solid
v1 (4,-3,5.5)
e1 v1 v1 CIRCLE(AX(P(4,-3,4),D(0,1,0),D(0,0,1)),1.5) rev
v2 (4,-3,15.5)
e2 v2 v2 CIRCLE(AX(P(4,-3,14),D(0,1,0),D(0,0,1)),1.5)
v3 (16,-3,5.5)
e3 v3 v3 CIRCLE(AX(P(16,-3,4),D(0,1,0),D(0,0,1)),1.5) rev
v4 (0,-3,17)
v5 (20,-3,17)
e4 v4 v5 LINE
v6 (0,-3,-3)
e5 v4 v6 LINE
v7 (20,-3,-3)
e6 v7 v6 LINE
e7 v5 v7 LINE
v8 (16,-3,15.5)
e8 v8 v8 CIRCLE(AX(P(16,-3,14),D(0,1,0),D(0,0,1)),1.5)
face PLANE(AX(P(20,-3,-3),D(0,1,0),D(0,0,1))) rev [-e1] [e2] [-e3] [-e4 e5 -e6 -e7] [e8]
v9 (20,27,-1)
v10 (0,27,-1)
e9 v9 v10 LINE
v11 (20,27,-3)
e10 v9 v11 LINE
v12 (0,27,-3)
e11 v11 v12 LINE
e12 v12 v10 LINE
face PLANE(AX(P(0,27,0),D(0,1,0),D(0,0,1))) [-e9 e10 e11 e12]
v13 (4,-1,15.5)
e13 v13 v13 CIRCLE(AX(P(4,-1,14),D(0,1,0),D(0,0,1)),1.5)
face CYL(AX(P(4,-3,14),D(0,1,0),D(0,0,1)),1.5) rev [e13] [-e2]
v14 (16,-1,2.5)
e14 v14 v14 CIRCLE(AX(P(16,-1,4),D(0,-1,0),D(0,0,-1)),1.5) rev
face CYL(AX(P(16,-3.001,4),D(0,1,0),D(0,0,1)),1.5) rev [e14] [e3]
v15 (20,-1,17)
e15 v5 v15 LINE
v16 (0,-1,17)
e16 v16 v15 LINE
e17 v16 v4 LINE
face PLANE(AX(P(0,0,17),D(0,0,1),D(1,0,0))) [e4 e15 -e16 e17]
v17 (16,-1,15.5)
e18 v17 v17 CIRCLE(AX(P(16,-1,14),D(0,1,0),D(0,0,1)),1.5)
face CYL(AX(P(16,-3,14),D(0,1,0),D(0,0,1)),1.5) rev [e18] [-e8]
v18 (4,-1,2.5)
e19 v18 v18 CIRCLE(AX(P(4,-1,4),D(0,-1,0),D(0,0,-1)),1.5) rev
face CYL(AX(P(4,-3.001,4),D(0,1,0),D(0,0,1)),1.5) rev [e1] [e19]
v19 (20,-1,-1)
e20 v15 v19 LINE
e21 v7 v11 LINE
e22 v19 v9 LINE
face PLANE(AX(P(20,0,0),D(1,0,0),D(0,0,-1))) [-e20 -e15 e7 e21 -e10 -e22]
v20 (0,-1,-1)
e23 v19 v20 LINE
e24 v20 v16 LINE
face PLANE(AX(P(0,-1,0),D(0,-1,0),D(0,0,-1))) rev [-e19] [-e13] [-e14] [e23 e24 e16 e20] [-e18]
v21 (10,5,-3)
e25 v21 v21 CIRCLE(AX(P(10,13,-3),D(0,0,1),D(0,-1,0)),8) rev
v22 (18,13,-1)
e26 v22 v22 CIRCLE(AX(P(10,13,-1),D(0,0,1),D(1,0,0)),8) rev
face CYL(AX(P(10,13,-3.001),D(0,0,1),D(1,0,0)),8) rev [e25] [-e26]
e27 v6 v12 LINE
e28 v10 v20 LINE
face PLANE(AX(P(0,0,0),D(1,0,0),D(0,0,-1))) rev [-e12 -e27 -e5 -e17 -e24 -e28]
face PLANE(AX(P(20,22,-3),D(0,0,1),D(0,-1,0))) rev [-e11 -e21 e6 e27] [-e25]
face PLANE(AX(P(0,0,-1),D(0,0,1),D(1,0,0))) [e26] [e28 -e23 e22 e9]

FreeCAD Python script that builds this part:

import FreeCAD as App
import Part
import Sketcher
from FreeCAD import Vector


def add_polygon(sketch, points):
    """Adds a closed chain of lines whose ends are joined by coincident constraints."""
    first, n = sketch.GeometryCount, len(points)
    for a, b in zip(points, points[1:] + points[:1]):
        sketch.addGeometry(Part.LineSegment(App.Vector(*a, 0), App.Vector(*b, 0)), False)
    for i in range(n):
        sketch.addConstraint(Sketcher.Constraint("Coincident", first + i, 2, first + (i + 1) % n, 1))

doc = App.newDocument("Part")
body = doc.addObject("PartDesign::Body", "Body")

sketch1 = body.newObject("Sketcher::SketchObject", "Sketch")
sketch1.AttachmentSupport = (doc.getObject("YZ_Plane"), [""])
sketch1.MapMode = "FlatFace"
add_polygon(sketch1, [(22, 0), (0, 0), (0, 35), (-3, 35), (-3, -3), (22, -3)])
sketch1.addConstraint([
    Sketcher.Constraint("Horizontal", 0),
    Sketcher.Constraint("Vertical", 1),
    Sketcher.Constraint("Horizontal", 2),
    Sketcher.Constraint("Vertical", 3),
    Sketcher.Constraint("Horizontal", 4),
    Sketcher.Constraint("Vertical", 5),
    Sketcher.Constraint("Coincident", 0, 2, -1, 1),
    Sketcher.Constraint("Equal", 2, 5),
    Sketcher.Constraint("DistanceX", 0, 2, 0, 1, 22.0),
    Sketcher.Constraint("DistanceX", 2, 2, 2, 1, 3.0),
    Sketcher.Constraint("DistanceY", 1, 1, 1, 2, 35.0),
])
pad1 = body.newObject("PartDesign::Pad", "Pad")
pad1.Profile = sketch1
pad1.Length = 20

sketch2 = body.newObject("Sketcher::SketchObject", "Sketch001")
sketch2.AttachmentSupport = (doc.getObject("XY_Plane"), [""])
sketch2.MapMode = "FlatFace"
sketch2.addGeometry(Part.Circle(Vector(10, 13, 0), Vector(0, 0, 1), 8), False)
sketch2.addConstraint([
    Sketcher.Constraint("Diameter", 0, 16.0),
    Sketcher.Constraint("DistanceX", -1, 1, 0, 3, 10.0),
    Sketcher.Constraint("DistanceY", -1, 1, 0, 3, 13.0),
])
pocket1 = body.newObject("PartDesign::Pocket", "Pocket")
pocket1.Profile = sketch2
pocket1.Type = "UpToFirst"

sketch3 = body.newObject("Sketcher::SketchObject", "Sketch002")
sketch3.AttachmentSupport = (doc.getObject("XZ_Plane"), [""])
sketch3.MapMode = "FlatFace"
sketch3.addGeometry(Part.Circle(Vector(4, 4, 0), Vector(0, 0, 1), 1.5), False)
sketch3.addConstraint([
    Sketcher.Constraint("Diameter", 0, 3.0),
    Sketcher.Constraint("DistanceX", -1, 1, 0, 3, 4.0),
    Sketcher.Constraint("DistanceY", -1, 1, 0, 3, 4.0),
])
pocket2 = body.newObject("PartDesign::Pocket", "Pocket001")
pocket2.Profile = sketch3
pocket2.Type = "UpToFirst"
pocket2.Reversed = True

sketch4 = body.newObject("Sketcher::SketchObject", "Sketch003")
sketch4.AttachmentSupport = (doc.getObject("XZ_Plane"), [""])
sketch4.MapMode = "FlatFace"
sketch4.addGeometry(Part.Circle(Vector(16, 4, 0), Vector(0, 0, 1), 1.5), False)
sketch4.addConstraint([
    Sketcher.Constraint("Diameter", 0, 3.0),
    Sketcher.Constraint("DistanceX", -1, 1, 0, 3, 16.0),
    Sketcher.Constraint("DistanceY", -1, 1, 0, 3, 4.0),
])
pocket3 = body.newObject("PartDesign::Pocket", "Pocket002")
pocket3.Profile = sketch4
pocket3.Type = "UpToFirst"
pocket3.Reversed = True

sketch5 = body.newObject("Sketcher::SketchObject", "Sketch004")
sketch5.AttachmentSupport = (doc.getObject("XZ_Plane"), [""])
sketch5.MapMode = "FlatFace"
sketch5.AttachmentOffset = App.Placement(Vector(0, 0, -22), App.Rotation())
add_polygon(sketch5, [(0, -3), (0, 0), (20, 0), (20, -3)])
sketch5.addConstraint([
    Sketcher.Constraint("Vertical", 0),
    Sketcher.Constraint("Horizontal", 1),
    Sketcher.Constraint("Vertical", 2),
    Sketcher.Constraint("Horizontal", 3),
    Sketcher.Constraint("Coincident", 0, 2, -1, 1),
    Sketcher.Constraint("DistanceX", 1, 1, 1, 2, 20.0),
    Sketcher.Constraint("DistanceY", 0, 1, 0, 2, 3.0),
])
pad2 = body.newObject("PartDesign::Pad", "Pad001")
pad2.Profile = sketch5
pad2.Length = 5
pad2.Reversed = True

sketch6 = body.newObject("Sketcher::SketchObject", "Sketch005")
sketch6.AttachmentSupport = (doc.getObject("XY_Plane"), [""])
sketch6.MapMode = "FlatFace"
add_polygon(sketch6, [(0, 27), (0, 0), (20, 0), (20, 27)])
sketch6.addConstraint([
    Sketcher.Constraint("Vertical", 0),
    Sketcher.Constraint("Horizontal", 1),
    Sketcher.Constraint("Vertical", 2),
    Sketcher.Constraint("Horizontal", 3),
    Sketcher.Constraint("Coincident", 0, 2, -1, 1),
    Sketcher.Constraint("DistanceX", 1, 1, 1, 2, 20.0),
    Sketcher.Constraint("DistanceY", 0, 2, 0, 1, 27.0),
])
pocket4 = body.newObject("PartDesign::Pocket", "Pocket003")
pocket4.Profile = sketch6
pocket4.Length = 1

sketch7 = body.newObject("Sketcher::SketchObject", "Sketch006")
sketch7.AttachmentSupport = (doc.getObject("XY_Plane"), [""])
sketch7.MapMode = "FlatFace"
sketch7.AttachmentOffset = App.Placement(Vector(0, 0, 35), App.Rotation())
add_polygon(sketch7, [(0, 0), (0, -3), (20, -3), (20, 0)])
sketch7.addConstraint([
    Sketcher.Constraint("Vertical", 0),
    Sketcher.Constraint("Horizontal", 1),
    Sketcher.Constraint("Vertical", 2),
    Sketcher.Constraint("Horizontal", 3),
    Sketcher.Constraint("Coincident", 3, 2, -1, 1),
    Sketcher.Constraint("DistanceX", 1, 1, 1, 2, 20.0),
    Sketcher.Constraint("DistanceY", 0, 2, 0, 1, 3.0),
])
pocket5 = body.newObject("PartDesign::Pocket", "Pocket004")
pocket5.Profile = sketch7
pocket5.Length = 18

sketch8 = body.newObject("Sketcher::SketchObject", "Sketch007")
sketch8.AttachmentSupport = (doc.getObject("XZ_Plane"), [""])
sketch8.MapMode = "FlatFace"
add_polygon(sketch8, [(0, -1), (0, 17), (20, 17), (20, -1)])
sketch8.addConstraint([
    Sketcher.Constraint("Vertical", 0),
    Sketcher.Constraint("Horizontal", 1),
    Sketcher.Constraint("Vertical", 2),
    Sketcher.Constraint("Horizontal", 3),
    Sketcher.Constraint("PointOnObject", 0, 2, -2),
    Sketcher.Constraint("DistanceX", 1, 1, 1, 2, 20.0),
    Sketcher.Constraint("DistanceY", 0, 1, 0, 2, 18.0),
    Sketcher.Constraint("DistanceY", -1, 1, 0, 2, 17.0),
])
pocket6 = body.newObject("PartDesign::Pocket", "Pocket005")
pocket6.Profile = sketch8
pocket6.Length = 1
pocket6.Reversed = True

sketch9 = body.newObject("Sketcher::SketchObject", "Sketch008")
sketch9.AttachmentSupport = (doc.getObject("XZ_Plane"), [""])
sketch9.MapMode = "FlatFace"
sketch9.AttachmentOffset = App.Placement(Vector(0, 0, 1), App.Rotation())
sketch9.addGeometry([
    Part.Circle(Vector(4, 14, 0), Vector(0, 0, 1), 1.5),
    Part.Circle(Vector(16, 14, 0), Vector(0, 0, 1), 1.5),
], False)
sketch9.addConstraint([
    Sketcher.Constraint("Equal", 0, 1),
    Sketcher.Constraint("Horizontal", 0, 3, 1, 3),
    Sketcher.Constraint("Diameter", 0, 3.0),
    Sketcher.Constraint("DistanceX", -1, 1, 0, 3, 4.0),
    Sketcher.Constraint("DistanceY", -1, 1, 0, 3, 14.0),
    Sketcher.Constraint("DistanceX", -1, 1, 1, 3, 16.0),
])
pocket7 = body.newObject("PartDesign::Pocket", "Pocket006")
pocket7.Profile = sketch9
pocket7.Length = 2
pocket7.Reversed = True

doc.recompute()
